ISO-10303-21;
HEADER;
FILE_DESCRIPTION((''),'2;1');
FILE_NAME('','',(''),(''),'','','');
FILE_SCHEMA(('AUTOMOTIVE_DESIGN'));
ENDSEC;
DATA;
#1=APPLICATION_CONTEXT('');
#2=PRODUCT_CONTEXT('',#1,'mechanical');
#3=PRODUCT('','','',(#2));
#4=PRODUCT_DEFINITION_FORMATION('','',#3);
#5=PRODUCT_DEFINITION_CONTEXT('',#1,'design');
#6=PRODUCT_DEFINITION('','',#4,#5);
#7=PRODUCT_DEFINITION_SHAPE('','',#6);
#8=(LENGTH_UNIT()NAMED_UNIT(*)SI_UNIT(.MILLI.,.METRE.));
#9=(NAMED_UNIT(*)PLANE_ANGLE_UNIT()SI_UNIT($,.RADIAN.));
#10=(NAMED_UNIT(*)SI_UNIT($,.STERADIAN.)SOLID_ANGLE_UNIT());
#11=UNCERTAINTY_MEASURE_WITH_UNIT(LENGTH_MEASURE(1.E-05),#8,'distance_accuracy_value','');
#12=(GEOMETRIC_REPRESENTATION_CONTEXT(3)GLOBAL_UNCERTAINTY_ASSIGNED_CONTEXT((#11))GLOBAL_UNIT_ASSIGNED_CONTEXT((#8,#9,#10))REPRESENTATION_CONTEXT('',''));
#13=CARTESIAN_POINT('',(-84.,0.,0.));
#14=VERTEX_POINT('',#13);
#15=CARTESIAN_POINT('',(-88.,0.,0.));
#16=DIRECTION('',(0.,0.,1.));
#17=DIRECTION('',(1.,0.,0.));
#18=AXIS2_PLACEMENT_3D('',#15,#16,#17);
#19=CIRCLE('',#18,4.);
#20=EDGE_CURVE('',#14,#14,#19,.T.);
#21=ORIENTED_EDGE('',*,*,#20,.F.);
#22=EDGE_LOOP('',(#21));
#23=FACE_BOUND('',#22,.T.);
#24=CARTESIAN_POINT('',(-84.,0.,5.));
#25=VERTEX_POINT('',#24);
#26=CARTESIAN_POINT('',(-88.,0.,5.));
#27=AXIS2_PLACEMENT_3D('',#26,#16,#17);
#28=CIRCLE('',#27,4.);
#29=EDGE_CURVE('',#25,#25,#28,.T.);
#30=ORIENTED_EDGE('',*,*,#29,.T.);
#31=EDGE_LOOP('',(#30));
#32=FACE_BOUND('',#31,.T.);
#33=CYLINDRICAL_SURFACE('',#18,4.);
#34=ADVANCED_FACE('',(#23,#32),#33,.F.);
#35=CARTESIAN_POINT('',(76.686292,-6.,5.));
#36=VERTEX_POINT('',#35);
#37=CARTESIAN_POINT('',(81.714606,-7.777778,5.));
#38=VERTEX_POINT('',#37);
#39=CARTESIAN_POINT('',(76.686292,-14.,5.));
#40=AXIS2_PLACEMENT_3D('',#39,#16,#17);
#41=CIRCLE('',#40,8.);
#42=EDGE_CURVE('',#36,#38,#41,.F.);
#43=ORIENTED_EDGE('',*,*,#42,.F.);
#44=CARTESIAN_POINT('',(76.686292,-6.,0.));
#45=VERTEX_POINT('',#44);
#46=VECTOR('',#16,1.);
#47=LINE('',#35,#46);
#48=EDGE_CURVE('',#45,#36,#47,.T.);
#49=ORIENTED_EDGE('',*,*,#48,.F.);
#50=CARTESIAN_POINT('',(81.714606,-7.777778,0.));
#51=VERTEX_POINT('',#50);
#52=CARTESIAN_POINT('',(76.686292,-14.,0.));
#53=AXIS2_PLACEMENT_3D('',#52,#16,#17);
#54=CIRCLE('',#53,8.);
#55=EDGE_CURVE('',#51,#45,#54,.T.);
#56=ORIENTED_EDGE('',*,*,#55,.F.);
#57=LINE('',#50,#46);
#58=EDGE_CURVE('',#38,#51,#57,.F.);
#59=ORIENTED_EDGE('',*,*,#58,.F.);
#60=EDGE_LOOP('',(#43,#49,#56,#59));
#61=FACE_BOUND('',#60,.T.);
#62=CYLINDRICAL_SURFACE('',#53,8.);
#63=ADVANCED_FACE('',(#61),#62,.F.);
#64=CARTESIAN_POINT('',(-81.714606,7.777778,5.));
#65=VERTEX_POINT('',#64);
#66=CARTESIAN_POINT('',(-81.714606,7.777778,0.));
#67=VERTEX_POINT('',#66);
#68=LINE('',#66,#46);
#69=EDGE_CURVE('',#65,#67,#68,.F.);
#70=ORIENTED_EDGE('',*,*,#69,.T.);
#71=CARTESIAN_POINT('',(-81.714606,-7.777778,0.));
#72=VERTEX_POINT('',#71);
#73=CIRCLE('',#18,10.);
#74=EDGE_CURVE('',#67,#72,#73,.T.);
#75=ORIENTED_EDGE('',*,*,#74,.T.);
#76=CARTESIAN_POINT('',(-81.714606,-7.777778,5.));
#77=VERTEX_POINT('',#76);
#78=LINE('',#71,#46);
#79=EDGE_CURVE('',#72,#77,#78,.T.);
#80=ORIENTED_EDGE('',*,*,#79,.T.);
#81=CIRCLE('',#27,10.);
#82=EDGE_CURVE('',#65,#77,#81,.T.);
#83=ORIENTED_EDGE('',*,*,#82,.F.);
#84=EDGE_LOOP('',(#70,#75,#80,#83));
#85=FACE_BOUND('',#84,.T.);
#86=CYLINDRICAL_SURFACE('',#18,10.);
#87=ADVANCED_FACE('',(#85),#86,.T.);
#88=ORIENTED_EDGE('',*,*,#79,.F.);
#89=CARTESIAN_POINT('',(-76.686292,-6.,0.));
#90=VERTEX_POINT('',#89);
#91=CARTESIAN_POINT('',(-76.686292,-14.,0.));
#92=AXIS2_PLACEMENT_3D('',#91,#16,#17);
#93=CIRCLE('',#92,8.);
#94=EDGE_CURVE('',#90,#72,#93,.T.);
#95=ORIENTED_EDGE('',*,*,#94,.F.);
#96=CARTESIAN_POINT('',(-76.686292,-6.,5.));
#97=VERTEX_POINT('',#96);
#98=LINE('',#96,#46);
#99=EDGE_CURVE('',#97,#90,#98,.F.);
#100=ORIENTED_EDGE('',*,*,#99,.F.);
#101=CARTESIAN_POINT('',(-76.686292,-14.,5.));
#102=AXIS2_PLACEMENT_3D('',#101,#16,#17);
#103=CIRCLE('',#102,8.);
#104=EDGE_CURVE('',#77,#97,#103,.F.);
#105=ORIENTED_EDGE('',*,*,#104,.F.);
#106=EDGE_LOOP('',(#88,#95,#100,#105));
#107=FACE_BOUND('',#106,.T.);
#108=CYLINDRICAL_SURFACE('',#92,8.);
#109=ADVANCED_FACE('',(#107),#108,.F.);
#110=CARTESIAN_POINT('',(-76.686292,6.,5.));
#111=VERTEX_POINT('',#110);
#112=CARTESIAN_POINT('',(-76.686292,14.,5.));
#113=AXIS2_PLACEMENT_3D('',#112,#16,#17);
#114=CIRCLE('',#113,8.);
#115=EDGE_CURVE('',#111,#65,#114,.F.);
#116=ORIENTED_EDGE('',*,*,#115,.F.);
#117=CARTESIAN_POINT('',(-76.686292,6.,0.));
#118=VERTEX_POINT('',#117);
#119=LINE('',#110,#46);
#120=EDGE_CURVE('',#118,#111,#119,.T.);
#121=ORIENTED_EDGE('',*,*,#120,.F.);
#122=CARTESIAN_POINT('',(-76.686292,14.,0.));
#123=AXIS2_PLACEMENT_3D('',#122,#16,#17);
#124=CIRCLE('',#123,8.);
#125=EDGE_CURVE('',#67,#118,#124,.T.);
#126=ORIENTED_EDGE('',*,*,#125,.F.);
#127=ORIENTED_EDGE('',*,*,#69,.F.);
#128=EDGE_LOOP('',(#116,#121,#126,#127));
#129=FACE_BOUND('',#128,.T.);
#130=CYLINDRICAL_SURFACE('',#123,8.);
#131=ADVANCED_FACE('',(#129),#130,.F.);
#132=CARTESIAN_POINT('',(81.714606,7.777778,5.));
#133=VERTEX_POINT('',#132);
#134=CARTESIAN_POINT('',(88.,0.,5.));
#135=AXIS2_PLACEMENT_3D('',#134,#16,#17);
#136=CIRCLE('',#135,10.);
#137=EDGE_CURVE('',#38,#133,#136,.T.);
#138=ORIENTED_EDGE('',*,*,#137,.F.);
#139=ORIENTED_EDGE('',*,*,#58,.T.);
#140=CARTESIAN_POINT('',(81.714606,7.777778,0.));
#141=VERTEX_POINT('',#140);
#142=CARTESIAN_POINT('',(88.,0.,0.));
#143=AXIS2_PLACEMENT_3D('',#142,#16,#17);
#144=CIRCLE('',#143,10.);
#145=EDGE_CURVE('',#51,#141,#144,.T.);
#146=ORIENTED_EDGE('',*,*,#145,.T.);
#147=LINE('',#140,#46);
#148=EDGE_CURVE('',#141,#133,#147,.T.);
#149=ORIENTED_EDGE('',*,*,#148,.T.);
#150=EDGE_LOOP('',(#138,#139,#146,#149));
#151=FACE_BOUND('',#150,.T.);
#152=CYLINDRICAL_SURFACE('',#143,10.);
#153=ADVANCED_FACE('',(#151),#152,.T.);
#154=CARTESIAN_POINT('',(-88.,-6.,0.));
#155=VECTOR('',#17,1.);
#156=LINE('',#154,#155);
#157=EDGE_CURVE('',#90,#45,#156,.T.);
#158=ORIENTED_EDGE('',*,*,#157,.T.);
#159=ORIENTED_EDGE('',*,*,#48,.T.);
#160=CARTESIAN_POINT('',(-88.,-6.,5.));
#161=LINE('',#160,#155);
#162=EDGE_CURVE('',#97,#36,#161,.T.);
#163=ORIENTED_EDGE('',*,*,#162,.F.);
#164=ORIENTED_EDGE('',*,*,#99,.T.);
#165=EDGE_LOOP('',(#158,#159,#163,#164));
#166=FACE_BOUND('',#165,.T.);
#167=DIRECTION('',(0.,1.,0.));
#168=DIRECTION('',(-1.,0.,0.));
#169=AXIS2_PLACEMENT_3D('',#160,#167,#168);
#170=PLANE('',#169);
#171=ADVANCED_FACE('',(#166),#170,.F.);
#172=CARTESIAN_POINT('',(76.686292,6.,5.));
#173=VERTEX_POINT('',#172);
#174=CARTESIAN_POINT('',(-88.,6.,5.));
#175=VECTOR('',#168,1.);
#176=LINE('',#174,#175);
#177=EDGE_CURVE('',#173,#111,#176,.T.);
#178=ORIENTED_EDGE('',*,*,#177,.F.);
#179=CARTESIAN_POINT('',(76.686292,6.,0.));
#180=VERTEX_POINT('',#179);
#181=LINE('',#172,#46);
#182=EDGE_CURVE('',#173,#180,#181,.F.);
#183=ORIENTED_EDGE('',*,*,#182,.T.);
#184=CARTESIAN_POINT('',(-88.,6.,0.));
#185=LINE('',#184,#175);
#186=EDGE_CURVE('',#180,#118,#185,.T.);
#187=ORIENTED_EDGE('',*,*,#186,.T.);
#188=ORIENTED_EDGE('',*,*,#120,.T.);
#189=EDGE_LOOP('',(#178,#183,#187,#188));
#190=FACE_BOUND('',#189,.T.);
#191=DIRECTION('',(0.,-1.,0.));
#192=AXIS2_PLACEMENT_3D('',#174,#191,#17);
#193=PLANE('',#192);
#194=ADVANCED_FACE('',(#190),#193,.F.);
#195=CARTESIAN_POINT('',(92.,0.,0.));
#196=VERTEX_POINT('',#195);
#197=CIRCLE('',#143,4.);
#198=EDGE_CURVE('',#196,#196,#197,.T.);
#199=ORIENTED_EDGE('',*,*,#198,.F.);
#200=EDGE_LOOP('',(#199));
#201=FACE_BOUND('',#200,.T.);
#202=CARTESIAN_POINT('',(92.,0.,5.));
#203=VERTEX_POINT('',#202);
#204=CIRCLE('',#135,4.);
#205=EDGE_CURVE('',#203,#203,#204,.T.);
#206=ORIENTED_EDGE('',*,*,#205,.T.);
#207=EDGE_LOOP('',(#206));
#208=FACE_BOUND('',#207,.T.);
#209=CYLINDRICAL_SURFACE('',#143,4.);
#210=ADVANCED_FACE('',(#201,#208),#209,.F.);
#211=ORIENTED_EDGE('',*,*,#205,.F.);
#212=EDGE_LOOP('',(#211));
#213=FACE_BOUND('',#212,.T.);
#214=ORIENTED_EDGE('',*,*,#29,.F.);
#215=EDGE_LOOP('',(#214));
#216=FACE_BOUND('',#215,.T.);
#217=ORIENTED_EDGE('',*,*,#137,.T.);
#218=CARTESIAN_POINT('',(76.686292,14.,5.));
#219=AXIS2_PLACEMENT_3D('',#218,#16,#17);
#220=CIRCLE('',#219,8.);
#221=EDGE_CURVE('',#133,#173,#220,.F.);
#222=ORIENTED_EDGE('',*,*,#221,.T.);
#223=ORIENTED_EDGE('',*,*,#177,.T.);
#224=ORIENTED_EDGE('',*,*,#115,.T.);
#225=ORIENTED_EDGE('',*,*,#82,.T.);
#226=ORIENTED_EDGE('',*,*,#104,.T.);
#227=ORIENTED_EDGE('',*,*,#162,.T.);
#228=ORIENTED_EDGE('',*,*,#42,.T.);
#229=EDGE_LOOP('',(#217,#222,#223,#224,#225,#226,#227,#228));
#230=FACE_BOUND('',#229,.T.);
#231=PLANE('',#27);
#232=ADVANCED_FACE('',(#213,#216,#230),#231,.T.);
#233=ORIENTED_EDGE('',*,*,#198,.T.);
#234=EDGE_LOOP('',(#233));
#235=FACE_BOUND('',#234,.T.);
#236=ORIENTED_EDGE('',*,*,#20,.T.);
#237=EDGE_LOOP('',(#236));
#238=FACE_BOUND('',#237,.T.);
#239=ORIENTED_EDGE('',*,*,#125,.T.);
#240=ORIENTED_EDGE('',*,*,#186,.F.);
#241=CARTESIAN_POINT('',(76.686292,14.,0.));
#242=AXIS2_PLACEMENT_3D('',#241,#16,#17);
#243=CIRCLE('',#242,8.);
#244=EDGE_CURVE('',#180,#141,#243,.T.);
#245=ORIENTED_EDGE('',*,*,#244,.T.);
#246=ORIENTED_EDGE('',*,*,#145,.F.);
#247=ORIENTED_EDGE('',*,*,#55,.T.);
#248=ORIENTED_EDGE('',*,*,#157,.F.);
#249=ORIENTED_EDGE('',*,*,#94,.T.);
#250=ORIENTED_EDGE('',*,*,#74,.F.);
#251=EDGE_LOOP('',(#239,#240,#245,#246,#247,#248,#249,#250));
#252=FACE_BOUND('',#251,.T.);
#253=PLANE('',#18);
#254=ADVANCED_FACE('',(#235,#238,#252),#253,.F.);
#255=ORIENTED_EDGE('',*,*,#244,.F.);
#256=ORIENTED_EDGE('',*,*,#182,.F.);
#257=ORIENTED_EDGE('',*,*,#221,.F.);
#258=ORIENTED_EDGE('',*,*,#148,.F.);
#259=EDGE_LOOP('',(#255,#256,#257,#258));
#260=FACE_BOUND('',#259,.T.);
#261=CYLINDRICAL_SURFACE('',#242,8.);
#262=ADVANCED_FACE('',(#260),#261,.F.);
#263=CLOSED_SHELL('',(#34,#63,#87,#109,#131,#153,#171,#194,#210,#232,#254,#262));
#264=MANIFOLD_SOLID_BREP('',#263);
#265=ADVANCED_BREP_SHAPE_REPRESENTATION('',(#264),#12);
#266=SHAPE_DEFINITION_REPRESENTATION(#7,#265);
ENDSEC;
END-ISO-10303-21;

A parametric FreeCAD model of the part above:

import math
import FreeCAD as App
import Part
import Sketcher
from FreeCAD import Vector


def edges_at(feature, points):
    """Names of the edges that pass closest to the given points."""
    edges = feature.Shape.Edges
    near = lambda p: min(range(len(edges)), key=lambda i: edges[i].distToShape(Part.Vertex(*p))[0])
    return sorted({f"Edge{near(p) + 1}" for p in points})

doc = App.newDocument("Part")
body = doc.addObject("PartDesign::Body", "Body")

# Sketch on XY plane
sketch1 = doc.addObject("Sketcher::SketchObject", "Sketch")
body.addObject(sketch1)
sketch1.AttachmentSupport = (doc.XY_Plane, [""])
sketch1.MapMode = "FlatFace"
sketch1.addGeometry(Part.LineSegment(Vector(88, 6, 0), Vector(-88, 6, 0)), False)
sketch1.addGeometry(Part.ArcOfCircle(Part.Circle(Vector(-88, 0, 0), Vector(0, 0, 1), 6), math.radians(90), math.radians(270)), False)
sketch1.addGeometry(Part.LineSegment(Vector(-88, -6, 0), Vector(88, -6, 0)), False)
sketch1.addGeometry(Part.ArcOfCircle(Part.Circle(Vector(88, 0, 0), Vector(0, 0, 1), 6), math.radians(-90), math.radians(90)), False)
sketch1.addGeometry(Part.Circle(Vector(88, 0, 0), Vector(0, 0, 1), 2.1), False)
sketch1.addGeometry(Part.Circle(Vector(-88, 0, 0), Vector(0, 0, 1), 2.1), False)
sketch1.addConstraint(Sketcher.Constraint("Tangent", 0, 2, 1, 1))
sketch1.addConstraint(Sketcher.Constraint("Tangent", 1, 2, 2, 1))
sketch1.addConstraint(Sketcher.Constraint("Tangent", 2, 2, 3, 1))
sketch1.addConstraint(Sketcher.Constraint("Tangent", 3, 2, 0, 1))
sketch1.addConstraint(Sketcher.Constraint("Horizontal", 0))
sketch1.addConstraint(Sketcher.Constraint("Horizontal", 2))
sketch1.addConstraint(Sketcher.Constraint("Coincident", 4, 3, 3, 3))
sketch1.addConstraint(Sketcher.Constraint("Coincident", 5, 3, 1, 3))
sketch1.addConstraint(Sketcher.Constraint("Equal", 4, 5))
sketch1.addConstraint(Sketcher.Constraint("Symmetric", 1, 3, 3, 3, -1, 1))
sketch1.addConstraint(Sketcher.Constraint("Radius", 1, 6.0))
sketch1.addConstraint(Sketcher.Constraint("Diameter", 4, 4.2))
sketch1.addConstraint(Sketcher.Constraint("DistanceX", 0, 2, 0, 1, 176.0))
pad1 = doc.addObject("PartDesign::Pad", "Pad")
body.addObject(pad1)
pad1.Profile = sketch1
pad1.Length = 5

# Sketch on XY plane
sketch2 = doc.addObject("Sketcher::SketchObject", "Sketch001")
body.addObject(sketch2)
sketch2.AttachmentSupport = (doc.XY_Plane, [""])
sketch2.MapMode = "FlatFace"
sketch2.AttachmentOffset = App.Placement(Vector(0, 0, 5), App.Rotation())
sketch2.addGeometry(Part.Circle(Vector(-88, 0, 0), Vector(0, 0, 1), 10), False)
sketch2.addGeometry(Part.Circle(Vector(88, 0, 0), Vector(0, 0, 1), 10), False)
sketch2.addConstraint(Sketcher.Constraint("Equal", 0, 1))
sketch2.addConstraint(Sketcher.Constraint("Symmetric", 0, 3, 1, 3, -1, 1))
sketch2.addConstraint(Sketcher.Constraint("PointOnObject", 0, 3, -1))
sketch2.addConstraint(Sketcher.Constraint("Diameter", 0, 20.0))
sketch2.addConstraint(Sketcher.Constraint("DistanceX", 0, 3, -1, 1, 88.0))
pad2 = doc.addObject("PartDesign::Pad", "Pad001")
body.addObject(pad2)
pad2.Profile = sketch2
pad2.Length = 5
pad2.Reversed = True

# Sketch on XY plane
sketch3 = doc.addObject("Sketcher::SketchObject", "Sketch002")
body.addObject(sketch3)
sketch3.AttachmentSupport = (doc.XY_Plane, [""])
sketch3.MapMode = "FlatFace"
sketch3.AttachmentOffset = App.Placement(Vector(0, 0, 5), App.Rotation())
sketch3.addGeometry(Part.Circle(Vector(-88, 0, 0), Vector(0, 0, 1), 4), False)
sketch3.addGeometry(Part.Circle(Vector(88, 0, 0), Vector(0, 0, 1), 4), False)
sketch3.addConstraint(Sketcher.Constraint("Equal", 0, 1))
sketch3.addConstraint(Sketcher.Constraint("Symmetric", 0, 3, 1, 3, -1, 1))
sketch3.addConstraint(Sketcher.Constraint("PointOnObject", 0, 3, -1))
sketch3.addConstraint(Sketcher.Constraint("Diameter", 0, 8.0))
sketch3.addConstraint(Sketcher.Constraint("DistanceX", 0, 3, -1, 1, 88.0))
pocket1 = doc.addObject("PartDesign::Pocket", "Pocket")
body.addObject(pocket1)
pocket1.Profile = sketch3
pocket1.Length = 5
doc.recompute()

fillet = doc.addObject("PartDesign::Fillet", "Fillet")
body.addObject(fillet)
fillet.Base = (pocket1, edges_at(pocket1, [
    (-80, 6, 2.5),
    (-80, -6, 2.5),
    (80, 6, 2.5),
    (80, -6, 2.5),
]))
fillet.Radius = 8

doc.recompute()
